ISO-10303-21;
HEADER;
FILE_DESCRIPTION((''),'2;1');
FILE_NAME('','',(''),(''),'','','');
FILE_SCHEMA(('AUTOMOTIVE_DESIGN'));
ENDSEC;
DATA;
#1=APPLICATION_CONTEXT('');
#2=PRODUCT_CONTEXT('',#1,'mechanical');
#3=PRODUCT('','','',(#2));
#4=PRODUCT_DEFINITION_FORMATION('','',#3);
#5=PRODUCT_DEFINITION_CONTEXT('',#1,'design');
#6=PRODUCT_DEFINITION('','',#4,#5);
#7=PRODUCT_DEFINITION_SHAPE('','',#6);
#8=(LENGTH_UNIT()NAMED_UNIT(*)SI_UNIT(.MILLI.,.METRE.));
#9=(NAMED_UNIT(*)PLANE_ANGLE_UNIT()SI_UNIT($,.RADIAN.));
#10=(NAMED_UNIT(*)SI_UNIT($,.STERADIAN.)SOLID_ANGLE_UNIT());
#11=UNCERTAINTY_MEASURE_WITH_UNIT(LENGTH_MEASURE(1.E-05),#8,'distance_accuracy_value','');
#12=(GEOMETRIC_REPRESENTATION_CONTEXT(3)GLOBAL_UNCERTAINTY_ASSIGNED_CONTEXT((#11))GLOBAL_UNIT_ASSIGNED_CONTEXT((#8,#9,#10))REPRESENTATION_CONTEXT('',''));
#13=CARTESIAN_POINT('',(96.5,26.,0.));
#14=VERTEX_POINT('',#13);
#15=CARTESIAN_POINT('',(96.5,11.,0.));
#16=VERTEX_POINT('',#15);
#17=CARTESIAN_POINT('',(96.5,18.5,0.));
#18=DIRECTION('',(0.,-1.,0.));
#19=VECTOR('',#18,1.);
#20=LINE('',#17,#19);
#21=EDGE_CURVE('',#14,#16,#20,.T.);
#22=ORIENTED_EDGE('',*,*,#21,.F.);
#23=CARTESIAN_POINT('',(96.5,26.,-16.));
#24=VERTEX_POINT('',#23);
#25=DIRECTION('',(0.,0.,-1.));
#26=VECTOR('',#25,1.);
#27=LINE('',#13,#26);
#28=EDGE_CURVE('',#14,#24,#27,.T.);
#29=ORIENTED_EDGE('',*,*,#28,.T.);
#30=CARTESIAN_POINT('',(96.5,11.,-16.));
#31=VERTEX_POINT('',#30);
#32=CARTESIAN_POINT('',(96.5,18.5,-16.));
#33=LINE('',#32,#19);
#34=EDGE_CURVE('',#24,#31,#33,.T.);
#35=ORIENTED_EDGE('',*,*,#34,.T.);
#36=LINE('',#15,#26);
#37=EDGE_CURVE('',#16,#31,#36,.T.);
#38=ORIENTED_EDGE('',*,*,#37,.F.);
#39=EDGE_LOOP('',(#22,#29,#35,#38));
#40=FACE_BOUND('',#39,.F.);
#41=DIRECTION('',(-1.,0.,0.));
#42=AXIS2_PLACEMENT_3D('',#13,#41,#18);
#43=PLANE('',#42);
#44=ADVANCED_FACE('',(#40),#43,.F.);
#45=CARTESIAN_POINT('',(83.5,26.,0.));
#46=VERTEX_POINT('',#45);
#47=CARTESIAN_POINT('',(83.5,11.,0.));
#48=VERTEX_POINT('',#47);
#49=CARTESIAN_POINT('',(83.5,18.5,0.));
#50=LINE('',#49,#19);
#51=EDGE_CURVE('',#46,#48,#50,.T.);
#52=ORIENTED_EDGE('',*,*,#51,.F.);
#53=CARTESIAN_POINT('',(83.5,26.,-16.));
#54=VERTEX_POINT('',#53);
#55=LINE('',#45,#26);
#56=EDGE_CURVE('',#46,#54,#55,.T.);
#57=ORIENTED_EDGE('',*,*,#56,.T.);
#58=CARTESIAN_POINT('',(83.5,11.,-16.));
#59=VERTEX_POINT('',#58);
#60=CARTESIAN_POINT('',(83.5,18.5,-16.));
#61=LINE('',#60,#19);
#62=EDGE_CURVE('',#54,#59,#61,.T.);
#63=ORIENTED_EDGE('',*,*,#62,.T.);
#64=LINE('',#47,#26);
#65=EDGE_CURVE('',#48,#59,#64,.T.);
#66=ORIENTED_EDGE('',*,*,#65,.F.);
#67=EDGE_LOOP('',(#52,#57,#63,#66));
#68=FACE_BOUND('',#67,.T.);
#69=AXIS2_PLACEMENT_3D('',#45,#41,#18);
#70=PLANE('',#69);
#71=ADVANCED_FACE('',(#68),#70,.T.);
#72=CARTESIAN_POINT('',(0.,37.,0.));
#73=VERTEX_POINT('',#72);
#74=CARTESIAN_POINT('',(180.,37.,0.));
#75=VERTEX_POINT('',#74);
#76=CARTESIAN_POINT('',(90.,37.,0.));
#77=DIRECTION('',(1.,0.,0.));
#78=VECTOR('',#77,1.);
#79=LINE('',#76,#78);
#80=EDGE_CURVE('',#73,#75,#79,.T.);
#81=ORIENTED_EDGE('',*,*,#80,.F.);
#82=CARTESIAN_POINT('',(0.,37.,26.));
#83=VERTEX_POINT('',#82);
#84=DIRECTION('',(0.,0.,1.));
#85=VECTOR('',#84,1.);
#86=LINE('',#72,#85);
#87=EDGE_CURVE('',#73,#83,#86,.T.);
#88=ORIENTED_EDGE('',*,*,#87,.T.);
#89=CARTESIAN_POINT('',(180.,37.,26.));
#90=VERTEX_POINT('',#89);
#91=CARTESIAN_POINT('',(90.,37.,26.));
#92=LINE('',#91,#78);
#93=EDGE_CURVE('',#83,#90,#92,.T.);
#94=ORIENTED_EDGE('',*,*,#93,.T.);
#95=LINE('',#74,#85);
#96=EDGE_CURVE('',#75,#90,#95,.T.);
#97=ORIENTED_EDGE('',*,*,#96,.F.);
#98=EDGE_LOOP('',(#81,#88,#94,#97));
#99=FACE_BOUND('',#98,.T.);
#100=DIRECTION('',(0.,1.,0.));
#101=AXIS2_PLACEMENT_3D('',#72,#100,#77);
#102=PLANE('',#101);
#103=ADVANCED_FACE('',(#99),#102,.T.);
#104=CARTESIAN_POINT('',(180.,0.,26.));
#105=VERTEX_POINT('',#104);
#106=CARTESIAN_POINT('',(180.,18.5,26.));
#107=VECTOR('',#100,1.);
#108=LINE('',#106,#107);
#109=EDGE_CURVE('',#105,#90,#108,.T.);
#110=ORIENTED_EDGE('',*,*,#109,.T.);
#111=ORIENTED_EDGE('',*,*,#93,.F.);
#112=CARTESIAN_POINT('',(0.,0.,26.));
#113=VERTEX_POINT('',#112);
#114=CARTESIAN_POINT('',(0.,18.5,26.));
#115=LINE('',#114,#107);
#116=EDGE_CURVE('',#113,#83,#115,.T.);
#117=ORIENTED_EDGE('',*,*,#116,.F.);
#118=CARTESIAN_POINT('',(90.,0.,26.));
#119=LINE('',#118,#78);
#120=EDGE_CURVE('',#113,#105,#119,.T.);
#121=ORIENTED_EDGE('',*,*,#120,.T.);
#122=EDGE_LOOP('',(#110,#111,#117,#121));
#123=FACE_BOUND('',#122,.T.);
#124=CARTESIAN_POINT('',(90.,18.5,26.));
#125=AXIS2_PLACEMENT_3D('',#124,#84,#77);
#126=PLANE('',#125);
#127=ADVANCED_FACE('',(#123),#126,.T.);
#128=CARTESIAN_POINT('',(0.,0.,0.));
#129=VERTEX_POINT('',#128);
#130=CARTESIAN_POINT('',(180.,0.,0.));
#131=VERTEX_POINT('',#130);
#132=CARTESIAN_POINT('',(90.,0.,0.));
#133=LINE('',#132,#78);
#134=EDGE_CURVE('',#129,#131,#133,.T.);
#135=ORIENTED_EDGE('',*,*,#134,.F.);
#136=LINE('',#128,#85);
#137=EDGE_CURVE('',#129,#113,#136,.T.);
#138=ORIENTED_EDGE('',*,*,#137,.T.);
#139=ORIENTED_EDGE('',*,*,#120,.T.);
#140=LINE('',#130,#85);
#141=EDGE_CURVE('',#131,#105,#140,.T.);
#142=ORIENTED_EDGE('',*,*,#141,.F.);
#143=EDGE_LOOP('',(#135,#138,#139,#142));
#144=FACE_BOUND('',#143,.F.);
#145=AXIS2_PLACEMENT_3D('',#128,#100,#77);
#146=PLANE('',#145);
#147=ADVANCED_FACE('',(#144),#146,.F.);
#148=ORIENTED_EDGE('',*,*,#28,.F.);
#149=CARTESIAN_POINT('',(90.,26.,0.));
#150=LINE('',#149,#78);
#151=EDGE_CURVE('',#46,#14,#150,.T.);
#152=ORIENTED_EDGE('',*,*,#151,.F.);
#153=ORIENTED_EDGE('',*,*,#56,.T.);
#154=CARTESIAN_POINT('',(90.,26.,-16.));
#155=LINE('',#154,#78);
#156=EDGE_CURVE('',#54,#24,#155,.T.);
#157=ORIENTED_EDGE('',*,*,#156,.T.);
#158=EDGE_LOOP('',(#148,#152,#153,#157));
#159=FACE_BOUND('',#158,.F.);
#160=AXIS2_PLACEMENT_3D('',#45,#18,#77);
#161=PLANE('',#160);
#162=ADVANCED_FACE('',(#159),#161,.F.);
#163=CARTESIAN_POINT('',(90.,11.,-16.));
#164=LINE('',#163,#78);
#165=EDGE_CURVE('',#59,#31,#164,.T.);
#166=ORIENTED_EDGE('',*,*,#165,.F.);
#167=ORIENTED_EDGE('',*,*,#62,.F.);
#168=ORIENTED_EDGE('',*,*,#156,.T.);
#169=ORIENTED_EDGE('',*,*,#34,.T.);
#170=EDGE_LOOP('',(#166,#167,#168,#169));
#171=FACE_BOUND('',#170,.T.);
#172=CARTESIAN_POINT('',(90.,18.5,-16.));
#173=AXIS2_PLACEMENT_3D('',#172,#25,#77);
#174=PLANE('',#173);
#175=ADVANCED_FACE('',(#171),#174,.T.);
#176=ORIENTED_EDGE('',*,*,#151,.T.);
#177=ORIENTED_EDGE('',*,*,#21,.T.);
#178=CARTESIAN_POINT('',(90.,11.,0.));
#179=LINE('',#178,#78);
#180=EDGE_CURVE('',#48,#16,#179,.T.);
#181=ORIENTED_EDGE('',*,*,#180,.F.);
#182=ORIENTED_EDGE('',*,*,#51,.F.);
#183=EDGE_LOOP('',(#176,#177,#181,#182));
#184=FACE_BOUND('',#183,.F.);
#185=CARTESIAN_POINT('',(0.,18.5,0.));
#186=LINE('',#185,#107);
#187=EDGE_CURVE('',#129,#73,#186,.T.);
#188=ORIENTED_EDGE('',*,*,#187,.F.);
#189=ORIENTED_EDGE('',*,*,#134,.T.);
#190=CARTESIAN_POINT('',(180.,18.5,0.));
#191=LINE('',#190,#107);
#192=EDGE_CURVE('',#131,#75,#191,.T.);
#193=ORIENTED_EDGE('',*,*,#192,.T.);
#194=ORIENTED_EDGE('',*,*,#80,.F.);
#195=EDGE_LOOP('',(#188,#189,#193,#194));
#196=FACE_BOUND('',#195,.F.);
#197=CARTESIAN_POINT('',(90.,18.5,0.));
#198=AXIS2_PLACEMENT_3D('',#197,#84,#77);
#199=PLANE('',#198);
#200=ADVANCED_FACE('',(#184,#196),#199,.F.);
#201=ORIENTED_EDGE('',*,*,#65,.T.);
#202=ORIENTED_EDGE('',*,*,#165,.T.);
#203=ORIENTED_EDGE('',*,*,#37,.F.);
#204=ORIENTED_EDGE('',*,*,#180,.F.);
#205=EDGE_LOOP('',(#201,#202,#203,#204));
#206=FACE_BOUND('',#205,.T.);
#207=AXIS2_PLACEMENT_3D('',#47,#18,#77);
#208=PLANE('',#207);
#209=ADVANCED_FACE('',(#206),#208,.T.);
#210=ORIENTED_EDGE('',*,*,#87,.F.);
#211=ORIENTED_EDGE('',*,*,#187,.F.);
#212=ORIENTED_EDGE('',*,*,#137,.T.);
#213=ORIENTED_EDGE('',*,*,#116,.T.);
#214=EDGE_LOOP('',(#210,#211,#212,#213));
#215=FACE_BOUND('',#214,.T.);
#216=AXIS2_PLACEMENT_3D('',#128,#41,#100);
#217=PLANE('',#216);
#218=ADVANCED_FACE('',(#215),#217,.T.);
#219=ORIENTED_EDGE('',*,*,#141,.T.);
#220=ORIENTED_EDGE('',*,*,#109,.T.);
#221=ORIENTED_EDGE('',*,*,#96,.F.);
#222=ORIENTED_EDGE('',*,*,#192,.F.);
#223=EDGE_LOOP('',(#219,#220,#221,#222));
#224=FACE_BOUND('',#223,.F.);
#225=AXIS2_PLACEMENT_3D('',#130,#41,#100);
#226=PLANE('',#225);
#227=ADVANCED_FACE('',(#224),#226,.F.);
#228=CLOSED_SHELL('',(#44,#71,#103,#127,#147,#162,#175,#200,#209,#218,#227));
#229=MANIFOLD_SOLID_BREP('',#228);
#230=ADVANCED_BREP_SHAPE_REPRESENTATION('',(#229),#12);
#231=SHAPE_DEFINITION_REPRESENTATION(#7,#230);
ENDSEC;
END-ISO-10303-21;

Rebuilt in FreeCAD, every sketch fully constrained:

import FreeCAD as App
import Part
import Sketcher
from FreeCAD import Vector
Q = App.Units.Quantity


def add_polygon(sketch, points):
    """Adds a closed chain of lines whose ends are joined by coincident constraints."""
    first, n = sketch.GeometryCount, len(points)
    for a, b in zip(points, points[1:] + points[:1]):
        sketch.addGeometry(Part.LineSegment(App.Vector(*a, 0), App.Vector(*b, 0)), False)
    for i in range(n):
        sketch.addConstraint(Sketcher.Constraint("Coincident", first + i, 2, first + (i + 1) % n, 1))

doc = App.newDocument("Part")
params = doc.addObject("Spreadsheet::Sheet", "Params")
for row, (alias, value) in enumerate([
    ("sketch1_width", "180 mm"),
    ("sketch1_height", "37 mm"),
    ("pad1_length", "26 mm"),
    ("sketch2_width", "13 mm"),
    ("sketch2_height", "15 mm"),
    ("pad2_length", "16 mm"),
], start=1):
    params.set(f"A{row}", alias)
    params.set(f"B{row}", "=" + value)
    params.setAlias(f"B{row}", alias)

body = doc.addObject("PartDesign::Body", "Body")

# Sketch on XY plane
sketch1 = doc.addObject("Sketcher::SketchObject", "Sketch")
body.addObject(sketch1)
sketch1.AttachmentSupport = (doc.XY_Plane, [""])
sketch1.MapMode = "FlatFace"
add_polygon(sketch1, [(0, 37), (0, 0), (180, 0), (180, 37)])  # lines 0-3
sketch1.addConstraint([
    Sketcher.Constraint("Vertical", 0),
    Sketcher.Constraint("Horizontal", 1),
    Sketcher.Constraint("Vertical", 2),
    Sketcher.Constraint("Horizontal", 3),
    Sketcher.Constraint("Coincident", 0, 2, -1, 1),
    Sketcher.Constraint("DistanceX", 1, 1, 1, 2, Q("180 mm")),
    Sketcher.Constraint("DistanceY", 0, 2, 0, 1, Q("37 mm")),
])
sketch1.setExpression("Constraints[9]", "Params.sketch1_width")
sketch1.setExpression("Constraints[10]", "Params.sketch1_height")
pad1 = doc.addObject("PartDesign::Pad", "Pad")
body.addObject(pad1)
pad1.Profile = sketch1
pad1.setExpression("Length", "Params.pad1_length")

# Sketch on XY plane
sketch2 = doc.addObject("Sketcher::SketchObject", "Sketch001")
body.addObject(sketch2)
sketch2.AttachmentSupport = (doc.XY_Plane, [""])
sketch2.MapMode = "FlatFace"
add_polygon(sketch2, [(84, 11), (84, 26), (96, 26), (96, 11)])  # lines 0-3
sketch2.addConstraint([
    Sketcher.Constraint("Vertical", 0),
    Sketcher.Constraint("Horizontal", 1),
    Sketcher.Constraint("Vertical", 2),
    Sketcher.Constraint("Horizontal", 3),
    Sketcher.Constraint("DistanceX", 1, 1, 1, 2, Q("13 mm")),
    Sketcher.Constraint("DistanceY", 0, 1, 0, 2, Q("15 mm")),
    Sketcher.Constraint("DistanceY", -1, 1, 0, 2, Q("26 mm")),
    Sketcher.Constraint("DistanceX", -1, 1, 0, 2, Q("83.5 mm")),
])
sketch2.setExpression("Constraints[8]", "Params.sketch2_width")
sketch2.setExpression("Constraints[9]", "Params.sketch2_height")
pad2 = doc.addObject("PartDesign::Pad", "Pad001")
body.addObject(pad2)
pad2.Profile = sketch2
pad2.setExpression("Length", "Params.pad2_length")
pad2.Reversed = True

doc.recompute()
